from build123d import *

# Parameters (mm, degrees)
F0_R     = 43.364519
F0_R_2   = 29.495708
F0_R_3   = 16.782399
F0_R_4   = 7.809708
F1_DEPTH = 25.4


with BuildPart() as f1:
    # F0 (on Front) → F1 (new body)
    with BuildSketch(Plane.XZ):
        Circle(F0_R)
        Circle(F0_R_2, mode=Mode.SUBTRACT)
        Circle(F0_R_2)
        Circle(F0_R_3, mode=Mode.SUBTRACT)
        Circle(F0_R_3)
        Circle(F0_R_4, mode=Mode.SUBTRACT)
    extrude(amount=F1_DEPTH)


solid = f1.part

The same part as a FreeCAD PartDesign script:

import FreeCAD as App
import Part
import Sketcher

doc = App.newDocument("Part")
params = doc.addObject("Spreadsheet::Sheet", "Params")
for row, (alias, value) in enumerate([
    ("pad1_length", "1 in"),
], start=1):
    params.set(f"A{row}", alias)
    params.set(f"B{row}", "=" + value)
    params.setAlias(f"B{row}", alias)

body = doc.addObject("PartDesign::Body", "Body")

# Sketch on XZ plane
sketch1 = body.newObject("Sketcher::SketchObject", "Sketch")
sketch1.AttachmentSupport = (doc.getObject("XZ_Plane"), [""])
sketch1.MapMode = "FlatFace"
sketch1.addGeometry(Part.Circle(App.Vector(0, 0, 0), App.Vector(0, 0, 1), 43), False)
sketch1.addGeometry(Part.Circle(App.Vector(0, 0, 0), App.Vector(0, 0, 1), 8), False)
sketch1.addConstraint(Sketcher.Constraint("Coincident", 0, 3, -1, 1))
sketch1.addConstraint(Sketcher.Constraint("Coincident", 1, 3, -1, 1))
sketch1.addConstraint(Sketcher.Constraint("Diameter", 0, 86.729038))
sketch1.addConstraint(Sketcher.Constraint("Diameter", 1, 15.619416))
pad1 = body.newObject("PartDesign::Pad", "Pad")
pad1.Profile = sketch1
pad1.setExpression("Length", "Params.pad1_length")

doc.recompute()
